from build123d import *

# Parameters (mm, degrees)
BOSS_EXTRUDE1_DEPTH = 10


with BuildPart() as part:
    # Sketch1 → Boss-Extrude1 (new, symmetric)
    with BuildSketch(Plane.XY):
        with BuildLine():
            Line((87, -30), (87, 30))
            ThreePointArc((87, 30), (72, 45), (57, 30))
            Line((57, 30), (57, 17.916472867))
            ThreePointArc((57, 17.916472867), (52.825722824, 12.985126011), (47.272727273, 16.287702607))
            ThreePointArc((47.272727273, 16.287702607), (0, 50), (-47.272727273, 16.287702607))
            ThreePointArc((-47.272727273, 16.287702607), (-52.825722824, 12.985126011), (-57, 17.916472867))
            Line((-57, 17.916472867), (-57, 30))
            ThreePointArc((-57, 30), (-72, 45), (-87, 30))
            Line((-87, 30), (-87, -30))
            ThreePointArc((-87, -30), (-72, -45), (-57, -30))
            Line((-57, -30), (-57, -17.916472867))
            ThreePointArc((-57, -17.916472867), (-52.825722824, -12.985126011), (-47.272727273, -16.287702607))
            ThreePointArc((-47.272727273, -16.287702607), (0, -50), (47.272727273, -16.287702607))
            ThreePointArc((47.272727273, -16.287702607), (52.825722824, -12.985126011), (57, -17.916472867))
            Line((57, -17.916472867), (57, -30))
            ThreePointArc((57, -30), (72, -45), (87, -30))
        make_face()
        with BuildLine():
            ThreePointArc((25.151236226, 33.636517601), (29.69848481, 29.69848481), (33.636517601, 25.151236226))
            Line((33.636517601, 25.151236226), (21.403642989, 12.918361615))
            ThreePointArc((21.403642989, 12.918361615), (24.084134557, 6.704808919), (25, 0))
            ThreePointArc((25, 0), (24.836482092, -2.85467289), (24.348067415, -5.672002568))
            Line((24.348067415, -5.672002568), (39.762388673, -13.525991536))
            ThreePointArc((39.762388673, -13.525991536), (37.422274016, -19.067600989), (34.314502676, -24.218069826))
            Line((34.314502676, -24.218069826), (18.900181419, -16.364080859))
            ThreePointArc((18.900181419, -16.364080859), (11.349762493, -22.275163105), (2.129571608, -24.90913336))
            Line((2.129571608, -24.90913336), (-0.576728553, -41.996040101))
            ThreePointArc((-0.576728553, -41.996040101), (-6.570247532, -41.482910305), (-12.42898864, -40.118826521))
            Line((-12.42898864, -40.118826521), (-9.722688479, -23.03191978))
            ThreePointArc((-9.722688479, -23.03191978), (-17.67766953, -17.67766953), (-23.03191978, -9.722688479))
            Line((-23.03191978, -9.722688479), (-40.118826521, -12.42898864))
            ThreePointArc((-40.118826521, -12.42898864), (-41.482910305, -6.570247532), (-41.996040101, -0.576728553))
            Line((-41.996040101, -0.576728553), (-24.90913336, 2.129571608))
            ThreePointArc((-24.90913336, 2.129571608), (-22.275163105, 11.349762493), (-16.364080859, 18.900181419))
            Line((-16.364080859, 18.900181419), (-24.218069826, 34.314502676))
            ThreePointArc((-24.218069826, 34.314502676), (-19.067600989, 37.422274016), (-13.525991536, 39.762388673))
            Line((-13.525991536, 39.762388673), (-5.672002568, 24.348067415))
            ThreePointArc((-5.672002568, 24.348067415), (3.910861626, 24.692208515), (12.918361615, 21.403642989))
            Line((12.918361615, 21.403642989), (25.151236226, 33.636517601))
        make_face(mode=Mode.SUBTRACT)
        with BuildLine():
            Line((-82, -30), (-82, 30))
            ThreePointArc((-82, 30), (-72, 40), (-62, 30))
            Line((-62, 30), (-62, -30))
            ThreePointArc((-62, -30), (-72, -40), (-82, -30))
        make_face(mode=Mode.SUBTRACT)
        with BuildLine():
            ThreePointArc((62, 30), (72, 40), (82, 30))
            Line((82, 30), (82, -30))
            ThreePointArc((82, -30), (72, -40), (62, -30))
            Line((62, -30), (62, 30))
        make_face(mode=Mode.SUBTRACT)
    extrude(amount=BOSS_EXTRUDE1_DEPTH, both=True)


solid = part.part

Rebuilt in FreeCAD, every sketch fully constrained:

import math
import FreeCAD as App
import Part
import Sketcher
Q = App.Units.Quantity

doc = App.newDocument("Part")
params = doc.addObject("Spreadsheet::Sheet", "Params")
for row, (alias, value) in enumerate([
    ("sketch1_radius", "15 mm"),
    ("sketch1_radius2", "5 mm"),
    ("sketch1_radius3", "50 mm"),
    ("sketch1_radius4", "42 mm"),
    ("sketch1_radius5", "25 mm"),
    ("pad1_length", "20 mm"),
], start=1):
    params.set(f"A{row}", alias)
    params.set(f"B{row}", "=" + value)
    params.setAlias(f"B{row}", alias)

body = doc.addObject("PartDesign::Body", "Body")

# Sketch on XY plane
sketch1 = body.newObject("Sketcher::SketchObject", "Sketch")
sketch1.AttachmentSupport = (doc.getObject("XY_Plane"), [""])
sketch1.MapMode = "FlatFace"
sketch1.addGeometry(Part.LineSegment(App.Vector(87, -30, 0), App.Vector(87, 30, 0)), False)
sketch1.addGeometry(Part.ArcOfCircle(Part.Circle(App.Vector(72, 30, 0), App.Vector(0, 0, 1), 15), math.radians(0), math.radians(180)), False)
sketch1.addGeometry(Part.LineSegment(App.Vector(57, 30, 0), App.Vector(57, 17.916473, 0)), False)
sketch1.addGeometry(Part.ArcOfCircle(Part.Circle(App.Vector(52, 17.916473, 0), App.Vector(0, 0, 1), 5), math.radians(-160.988735), math.radians(0)), False)
sketch1.addGeometry(Part.ArcOfCircle(Part.Circle(App.Vector(0, 0, 0), App.Vector(0, 0, 1), 50), math.radians(19.011265), math.radians(160.988735)), False)
sketch1.addGeometry(Part.ArcOfCircle(Part.Circle(App.Vector(-52, 17.916473, 0), App.Vector(0, 0, 1), 5), math.radians(180), math.radians(340.988735)), False)
sketch1.addGeometry(Part.LineSegment(App.Vector(-57, 17.916473, 0), App.Vector(-57, 30, 0)), False)
sketch1.addGeometry(Part.ArcOfCircle(Part.Circle(App.Vector(-72, 30, 0), App.Vector(0, 0, 1), 15), math.radians(0), math.radians(180)), False)
sketch1.addGeometry(Part.LineSegment(App.Vector(-87, 30, 0), App.Vector(-87, -30, 0)), False)
sketch1.addGeometry(Part.ArcOfCircle(Part.Circle(App.Vector(-72, -30, 0), App.Vector(0, 0, 1), 15), math.radians(180), math.radians(360)), False)
sketch1.addGeometry(Part.LineSegment(App.Vector(-57, -30, 0), App.Vector(-57, -17.916473, 0)), False)
sketch1.addGeometry(Part.ArcOfCircle(Part.Circle(App.Vector(-52, -17.916473, 0), App.Vector(0, 0, 1), 5), math.radians(19.011265), math.radians(180)), False)
sketch1.addGeometry(Part.ArcOfCircle(Part.Circle(App.Vector(0, 0, 0), App.Vector(0, 0, 1), 50), math.radians(-160.988735), math.radians(-19.011265)), False)
sketch1.addGeometry(Part.ArcOfCircle(Part.Circle(App.Vector(52, -17.916473, 0), App.Vector(0, 0, 1), 5), math.radians(0), math.radians(160.988735)), False)
sketch1.addGeometry(Part.LineSegment(App.Vector(57, -17.916473, 0), App.Vector(57, -30, 0)), False)
sketch1.addGeometry(Part.ArcOfCircle(Part.Circle(App.Vector(72, -30, 0), App.Vector(0, 0, 1), 15), math.radians(180), math.radians(360)), False)
sketch1.addGeometry(Part.LineSegment(App.Vector(12.918362, 21.403643, 0), App.Vector(25.151236, 33.636518, 0)), False)
sketch1.addGeometry(Part.ArcOfCircle(Part.Circle(App.Vector(0, 0, 0), App.Vector(0, 0, 1), 42), math.radians(36.786789), math.radians(53.213211)), False)
sketch1.addGeometry(Part.LineSegment(App.Vector(33.636518, 25.151236, 0), App.Vector(21.403643, 12.918362, 0)), False)
sketch1.addGeometry(Part.ArcOfCircle(Part.Circle(App.Vector(0, 0, 0), App.Vector(0, 0, 1), 25), math.radians(0), math.radians(31.11346)), False)
sketch1.addGeometry(Part.ArcOfCircle(Part.Circle(App.Vector(0, 0, 0), App.Vector(0, 0, 1), 25), math.radians(-13.11346), math.radians(0)), False)
sketch1.addGeometry(Part.LineSegment(App.Vector(24.348067, -5.672003, 0), App.Vector(39.762389, -13.525992, 0)), False)
sketch1.addGeometry(Part.ArcOfCircle(Part.Circle(App.Vector(0, 0, 0), App.Vector(0, 0, 1), 42), math.radians(-35.213211), math.radians(-18.786789)), False)
sketch1.addGeometry(Part.LineSegment(App.Vector(34.314503, -24.21807, 0), App.Vector(18.900181, -16.364081, 0)), False)
sketch1.addGeometry(Part.ArcOfCircle(Part.Circle(App.Vector(0, 0, 0), App.Vector(0, 0, 1), 25), math.radians(-85.11346), math.radians(-40.88654)), False)
sketch1.addGeometry(Part.LineSegment(App.Vector(2.129572, -24.909133, 0), App.Vector(-0.576729, -41.99604, 0)), False)
sketch1.addGeometry(Part.ArcOfCircle(Part.Circle(App.Vector(0, 0, 0), App.Vector(0, 0, 1), 42), math.radians(-107.213211), math.radians(-90.786789)), False)
sketch1.addGeometry(Part.LineSegment(App.Vector(-12.428989, -40.118827, 0), App.Vector(-9.722688, -23.03192, 0)), False)
sketch1.addGeometry(Part.ArcOfCircle(Part.Circle(App.Vector(0, 0, 0), App.Vector(0, 0, 1), 25), math.radians(-157.11346), math.radians(-112.88654)), False)
sketch1.addGeometry(Part.LineSegment(App.Vector(-23.03192, -9.722688, 0), App.Vector(-40.118827, -12.428989, 0)), False)
sketch1.addGeometry(Part.ArcOfCircle(Part.Circle(App.Vector(0, 0, 0), App.Vector(0, 0, 1), 42), math.radians(-179.213211), math.radians(-162.786789)), False)
sketch1.addGeometry(Part.LineSegment(App.Vector(-41.99604, -0.576729, 0), App.Vector(-24.909133, 2.129572, 0)), False)
sketch1.addGeometry(Part.ArcOfCircle(Part.Circle(App.Vector(0, 0, 0), App.Vector(0, 0, 1), 25), math.radians(130.88654), math.radians(175.11346)), False)
sketch1.addGeometry(Part.LineSegment(App.Vector(-16.364081, 18.900181, 0), App.Vector(-24.21807, 34.314503, 0)), False)
sketch1.addGeometry(Part.ArcOfCircle(Part.Circle(App.Vector(0, 0, 0), App.Vector(0, 0, 1), 42), math.radians(108.786789), math.radians(125.213211)), False)
sketch1.addGeometry(Part.LineSegment(App.Vector(-13.525992, 39.762389, 0), App.Vector(-5.672003, 24.348067, 0)), False)
sketch1.addGeometry(Part.ArcOfCircle(Part.Circle(App.Vector(0, 0, 0), App.Vector(0, 0, 1), 25), math.radians(58.88654), math.radians(103.11346)), False)
sketch1.addGeometry(Part.ArcOfCircle(Part.Circle(App.Vector(-72, -30, 0), App.Vector(0, 0, 1), 10), math.radians(180), math.radians(360)), False)
sketch1.addGeometry(Part.LineSegment(App.Vector(-82, -30, 0), App.Vector(-82, 30, 0)), False)
sketch1.addGeometry(Part.ArcOfCircle(Part.Circle(App.Vector(-72, 30, 0), App.Vector(0, 0, 1), 10), math.radians(0), math.radians(180)), False)
sketch1.addGeometry(Part.LineSegment(App.Vector(-62, 30, 0), App.Vector(-62, -30, 0)), False)
sketch1.addGeometry(Part.LineSegment(App.Vector(62, -30, 0), App.Vector(62, 30, 0)), False)
sketch1.addGeometry(Part.ArcOfCircle(Part.Circle(App.Vector(72, 30, 0), App.Vector(0, 0, 1), 10), math.radians(0), math.radians(180)), False)
sketch1.addGeometry(Part.LineSegment(App.Vector(82, 30, 0), App.Vector(82, -30, 0)), False)
sketch1.addGeometry(Part.ArcOfCircle(Part.Circle(App.Vector(72, -30, 0), App.Vector(0, 0, 1), 10), math.radians(180), math.radians(360)), False)
sketch1.addConstraint(Sketcher.Constraint("Tangent", 0, 2, 1, 1))
sketch1.addConstraint(Sketcher.Constraint("Tangent", 1, 2, 2, 1))
sketch1.addConstraint(Sketcher.Constraint("Tangent", 2, 2, 3, 2))
sketch1.addConstraint(Sketcher.Constraint("Tangent", 3, 1, 4, 1))
sketch1.addConstraint(Sketcher.Constraint("Tangent", 4, 2, 5, 2))
sketch1.addConstraint(Sketcher.Constraint("Tangent", 5, 1, 6, 1))
sketch1.addConstraint(Sketcher.Constraint("Tangent", 6, 2, 7, 1))
sketch1.addConstraint(Sketcher.Constraint("Tangent", 7, 2, 8, 1))
sketch1.addConstraint(Sketcher.Constraint("Tangent", 8, 2, 9, 1))
sketch1.addConstraint(Sketcher.Constraint("Tangent", 9, 2, 10, 1))
sketch1.addConstraint(Sketcher.Constraint("Tangent", 10, 2, 11, 2))
sketch1.addConstraint(Sketcher.Constraint("Tangent", 11, 1, 12, 1))
sketch1.addConstraint(Sketcher.Constraint("Tangent", 12, 2, 13, 2))
sketch1.addConstraint(Sketcher.Constraint("Tangent", 13, 1, 14, 1))
sketch1.addConstraint(Sketcher.Constraint("Tangent", 14, 2, 15, 1))
sketch1.addConstraint(Sketcher.Constraint("Tangent", 15, 2, 0, 1))
sketch1.addConstraint(Sketcher.Constraint("Coincident", 16, 2, 17, 2))
sketch1.addConstraint(Sketcher.Constraint("Coincident", 17, 1, 18, 1))
sketch1.addConstraint(Sketcher.Constraint("Coincident", 18, 2, 19, 2))
sketch1.addConstraint(Sketcher.Constraint("Tangent", 19, 1, 20, 2))
sketch1.addConstraint(Sketcher.Constraint("Coincident", 20, 1, 21, 1))
sketch1.addConstraint(Sketcher.Constraint("Coincident", 21, 2, 22, 2))
sketch1.addConstraint(Sketcher.Constraint("Coincident", 22, 1, 23, 1))
sketch1.addConstraint(Sketcher.Constraint("Coincident", 23, 2, 24, 2))
sketch1.addConstraint(Sketcher.Constraint("Coincident", 24, 1, 25, 1))
sketch1.addConstraint(Sketcher.Constraint("Coincident", 25, 2, 26, 2))
sketch1.addConstraint(Sketcher.Constraint("Coincident", 26, 1, 27, 1))
sketch1.addConstraint(Sketcher.Constraint("Coincident", 27, 2, 28, 2))
sketch1.addConstraint(Sketcher.Constraint("Coincident", 28, 1, 29, 1))
sketch1.addConstraint(Sketcher.Constraint("Coincident", 29, 2, 30, 2))
sketch1.addConstraint(Sketcher.Constraint("Coincident", 30, 1, 31, 1))
sketch1.addConstraint(Sketcher.Constraint("Coincident", 31, 2, 32, 2))
sketch1.addConstraint(Sketcher.Constraint("Coincident", 32, 1, 33, 1))
sketch1.addConstraint(Sketcher.Constraint("Coincident", 33, 2, 34, 2))
sketch1.addConstraint(Sketcher.Constraint("Coincident", 34, 1, 35, 1))
sketch1.addConstraint(Sketcher.Constraint("Coincident", 35, 2, 36, 2))
sketch1.addConstraint(Sketcher.Constraint("Coincident", 36, 1, 16, 1))
sketch1.addConstraint(Sketcher.Constraint("Tangent", 37, 1, 38, 1))
sketch1.addConstraint(Sketcher.Constraint("Tangent", 38, 2, 39, 2))
sketch1.addConstraint(Sketcher.Constraint("Tangent", 39, 1, 40, 1))
sketch1.addConstraint(Sketcher.Constraint("Tangent", 40, 2, 37, 2))
sketch1.addConstraint(Sketcher.Constraint("Tangent", 41, 2, 42, 2))
sketch1.addConstraint(Sketcher.Constraint("Tangent", 42, 1, 43, 1))
sketch1.addConstraint(Sketcher.Constraint("Tangent", 43, 2, 44, 2))
sketch1.addConstraint(Sketcher.Constraint("Tangent", 44, 1, 41, 1))
sketch1.addConstraint(Sketcher.Constraint("Vertical", 0))
sketch1.addConstraint(Sketcher.Constraint("Vertical", 2))
sketch1.addConstraint(Sketcher.Constraint("Vertical", 6))
sketch1.addConstraint(Sketcher.Constraint("Vertical", 8))
sketch1.addConstraint(Sketcher.Constraint("Vertical", 10))
sketch1.addConstraint(Sketcher.Constraint("Vertical", 14))
sketch1.addConstraint(Sketcher.Constraint("Vertical", 38))
sketch1.addConstraint(Sketcher.Constraint("Vertical", 40))
sketch1.addConstraint(Sketcher.Constraint("Vertical", 41))
sketch1.addConstraint(Sketcher.Constraint("Vertical", 43))
sketch1.addConstraint(Sketcher.Constraint("Coincident", 4, 3, -1, 1))
sketch1.addConstraint(Sketcher.Constraint("Coincident", 12, 3, -1, 1))
sketch1.addConstraint(Sketcher.Constraint("Coincident", 17, 3, -1, 1))
sketch1.addConstraint(Sketcher.Constraint("Coincident", 19, 3, -1, 1))
sketch1.addConstraint(Sketcher.Constraint("Coincident", 22, 3, -1, 1))
sketch1.addConstraint(Sketcher.Constraint("Coincident", 24, 3, -1, 1))
sketch1.addConstraint(Sketcher.Constraint("Coincident", 26, 3, -1, 1))
sketch1.addConstraint(Sketcher.Constraint("Coincident", 28, 3, -1, 1))
sketch1.addConstraint(Sketcher.Constraint("Coincident", 30, 3, -1, 1))
sketch1.addConstraint(Sketcher.Constraint("Coincident", 32, 3, -1, 1))
sketch1.addConstraint(Sketcher.Constraint("Coincident", 34, 3, -1, 1))
sketch1.addConstraint(Sketcher.Constraint("Coincident", 36, 3, -1, 1))
sketch1.addConstraint(Sketcher.Constraint("Coincident", 37, 3, 9, 3))
sketch1.addConstraint(Sketcher.Constraint("Coincident", 39, 3, 7, 3))
sketch1.addConstraint(Sketcher.Constraint("Coincident", 42, 3, 1, 3))
sketch1.addConstraint(Sketcher.Constraint("Coincident", 44, 3, 15, 3))
sketch1.addConstraint(Sketcher.Constraint("Equal", 3, 5))
sketch1.addConstraint(Sketcher.Constraint("Equal", 1, 7))
sketch1.addConstraint(Sketcher.Constraint("Equal", 5, 11))
sketch1.addConstraint(Sketcher.Constraint("Equal", 4, 12))
sketch1.addConstraint(Sketcher.Constraint("Equal", 11, 13))
sketch1.addConstraint(Sketcher.Constraint("Equal", 19, 20))
sketch1.addConstraint(Sketcher.Constraint("Equal", 17, 22))
sketch1.addConstraint(Sketcher.Constraint("Equal", 20, 24))
sketch1.addConstraint(Sketcher.Constraint("Equal", 22, 26))
sketch1.addConstraint(Sketcher.Constraint("Equal", 24, 28))
sketch1.addConstraint(Sketcher.Constraint("Equal", 26, 30))
sketch1.addConstraint(Sketcher.Constraint("Equal", 28, 32))
sketch1.addConstraint(Sketcher.Constraint("Equal", 30, 34))
sketch1.addConstraint(Sketcher.Constraint("Equal", 32, 36))
sketch1.addConstraint(Sketcher.Constraint("Equal", 39, 42))
sketch1.addConstraint(Sketcher.Constraint("Symmetric", 1, 3, 9, 3, -1, 1))
sketch1.addConstraint(Sketcher.Constraint("PointOnObject", 19, 1, -1))
sketch1.addConstraint(Sketcher.Constraint("Parallel", 16, 18))
sketch1.addConstraint(Sketcher.Constraint("Parallel", 21, 23))
sketch1.addConstraint(Sketcher.Constraint("Parallel", 25, 27))
sketch1.addConstraint(Sketcher.Constraint("Parallel", 29, 31))
sketch1.addConstraint(Sketcher.Constraint("Parallel", 33, 35))
sketch1.addConstraint(Sketcher.Constraint("Horizontal", 1, 3, 7, 3))
sketch1.addConstraint(Sketcher.Constraint("Horizontal", 9, 3, 15, 3))
sketch1.addConstraint(Sketcher.Constraint("Equal", 16, 18))
sketch1.addConstraint(Sketcher.Constraint("Equal", 18, 21))
sketch1.addConstraint(Sketcher.Constraint("Equal", 21, 23))
sketch1.addConstraint(Sketcher.Constraint("Equal", 23, 25))
sketch1.addConstraint(Sketcher.Constraint("Equal", 25, 27))
sketch1.addConstraint(Sketcher.Constraint("Equal", 27, 29))
sketch1.addConstraint(Sketcher.Constraint("Equal", 29, 31))
sketch1.addConstraint(Sketcher.Constraint("Equal", 31, 33))
sketch1.addConstraint(Sketcher.Constraint("Equal", 33, 35))
sketch1.addConstraint(Sketcher.Constraint("Radius", 1, Q("15 mm")))
sketch1.addConstraint(Sketcher.Constraint("Radius", 3, Q("5 mm")))
sketch1.addConstraint(Sketcher.Constraint("Radius", 4, Q("50 mm")))
sketch1.addConstraint(Sketcher.Constraint("Radius", 17, Q("42 mm")))
sketch1.addConstraint(Sketcher.Constraint("Radius", 19, Q("25 mm")))
sketch1.addConstraint(Sketcher.Constraint("Radius", 37, Q("10 mm")))
sketch1.addConstraint(Sketcher.Constraint("DistanceY", 0, 1, 0, 2, Q("60 mm")))
sketch1.addConstraint(Sketcher.Constraint("Angle", 16, Q("45 deg")))
sketch1.addConstraint(Sketcher.Constraint("Angle", 21, Q("-27 deg")))
sketch1.addConstraint(Sketcher.Constraint("Angle", 25, Q("-99 deg")))
sketch1.addConstraint(Sketcher.Constraint("Angle", 29, Q("-171 deg")))
sketch1.addConstraint(Sketcher.Constraint("Angle", 33, Q("117 deg")))
sketch1.addConstraint(Sketcher.Constraint("DistanceX", -1, 1, 1, 3, Q("72 mm")))
sketch1.addConstraint(Sketcher.Constraint("DistanceY", -1, 1, 18, 2, Q("12.918362 mm")))
sketch1.setExpression("Constraints[104]", "Params.sketch1_radius")
sketch1.setExpression("Constraints[105]", "Params.sketch1_radius2")
sketch1.setExpression("Constraints[106]", "Params.sketch1_radius3")
sketch1.setExpression("Constraints[107]", "Params.sketch1_radius4")
sketch1.setExpression("Constraints[108]", "Params.sketch1_radius5")
pad1 = body.newObject("PartDesign::Pad", "Pad")
pad1.Profile = sketch1
pad1.setExpression("Length", "Params.pad1_length")
pad1.Midplane = True

doc.recompute()
